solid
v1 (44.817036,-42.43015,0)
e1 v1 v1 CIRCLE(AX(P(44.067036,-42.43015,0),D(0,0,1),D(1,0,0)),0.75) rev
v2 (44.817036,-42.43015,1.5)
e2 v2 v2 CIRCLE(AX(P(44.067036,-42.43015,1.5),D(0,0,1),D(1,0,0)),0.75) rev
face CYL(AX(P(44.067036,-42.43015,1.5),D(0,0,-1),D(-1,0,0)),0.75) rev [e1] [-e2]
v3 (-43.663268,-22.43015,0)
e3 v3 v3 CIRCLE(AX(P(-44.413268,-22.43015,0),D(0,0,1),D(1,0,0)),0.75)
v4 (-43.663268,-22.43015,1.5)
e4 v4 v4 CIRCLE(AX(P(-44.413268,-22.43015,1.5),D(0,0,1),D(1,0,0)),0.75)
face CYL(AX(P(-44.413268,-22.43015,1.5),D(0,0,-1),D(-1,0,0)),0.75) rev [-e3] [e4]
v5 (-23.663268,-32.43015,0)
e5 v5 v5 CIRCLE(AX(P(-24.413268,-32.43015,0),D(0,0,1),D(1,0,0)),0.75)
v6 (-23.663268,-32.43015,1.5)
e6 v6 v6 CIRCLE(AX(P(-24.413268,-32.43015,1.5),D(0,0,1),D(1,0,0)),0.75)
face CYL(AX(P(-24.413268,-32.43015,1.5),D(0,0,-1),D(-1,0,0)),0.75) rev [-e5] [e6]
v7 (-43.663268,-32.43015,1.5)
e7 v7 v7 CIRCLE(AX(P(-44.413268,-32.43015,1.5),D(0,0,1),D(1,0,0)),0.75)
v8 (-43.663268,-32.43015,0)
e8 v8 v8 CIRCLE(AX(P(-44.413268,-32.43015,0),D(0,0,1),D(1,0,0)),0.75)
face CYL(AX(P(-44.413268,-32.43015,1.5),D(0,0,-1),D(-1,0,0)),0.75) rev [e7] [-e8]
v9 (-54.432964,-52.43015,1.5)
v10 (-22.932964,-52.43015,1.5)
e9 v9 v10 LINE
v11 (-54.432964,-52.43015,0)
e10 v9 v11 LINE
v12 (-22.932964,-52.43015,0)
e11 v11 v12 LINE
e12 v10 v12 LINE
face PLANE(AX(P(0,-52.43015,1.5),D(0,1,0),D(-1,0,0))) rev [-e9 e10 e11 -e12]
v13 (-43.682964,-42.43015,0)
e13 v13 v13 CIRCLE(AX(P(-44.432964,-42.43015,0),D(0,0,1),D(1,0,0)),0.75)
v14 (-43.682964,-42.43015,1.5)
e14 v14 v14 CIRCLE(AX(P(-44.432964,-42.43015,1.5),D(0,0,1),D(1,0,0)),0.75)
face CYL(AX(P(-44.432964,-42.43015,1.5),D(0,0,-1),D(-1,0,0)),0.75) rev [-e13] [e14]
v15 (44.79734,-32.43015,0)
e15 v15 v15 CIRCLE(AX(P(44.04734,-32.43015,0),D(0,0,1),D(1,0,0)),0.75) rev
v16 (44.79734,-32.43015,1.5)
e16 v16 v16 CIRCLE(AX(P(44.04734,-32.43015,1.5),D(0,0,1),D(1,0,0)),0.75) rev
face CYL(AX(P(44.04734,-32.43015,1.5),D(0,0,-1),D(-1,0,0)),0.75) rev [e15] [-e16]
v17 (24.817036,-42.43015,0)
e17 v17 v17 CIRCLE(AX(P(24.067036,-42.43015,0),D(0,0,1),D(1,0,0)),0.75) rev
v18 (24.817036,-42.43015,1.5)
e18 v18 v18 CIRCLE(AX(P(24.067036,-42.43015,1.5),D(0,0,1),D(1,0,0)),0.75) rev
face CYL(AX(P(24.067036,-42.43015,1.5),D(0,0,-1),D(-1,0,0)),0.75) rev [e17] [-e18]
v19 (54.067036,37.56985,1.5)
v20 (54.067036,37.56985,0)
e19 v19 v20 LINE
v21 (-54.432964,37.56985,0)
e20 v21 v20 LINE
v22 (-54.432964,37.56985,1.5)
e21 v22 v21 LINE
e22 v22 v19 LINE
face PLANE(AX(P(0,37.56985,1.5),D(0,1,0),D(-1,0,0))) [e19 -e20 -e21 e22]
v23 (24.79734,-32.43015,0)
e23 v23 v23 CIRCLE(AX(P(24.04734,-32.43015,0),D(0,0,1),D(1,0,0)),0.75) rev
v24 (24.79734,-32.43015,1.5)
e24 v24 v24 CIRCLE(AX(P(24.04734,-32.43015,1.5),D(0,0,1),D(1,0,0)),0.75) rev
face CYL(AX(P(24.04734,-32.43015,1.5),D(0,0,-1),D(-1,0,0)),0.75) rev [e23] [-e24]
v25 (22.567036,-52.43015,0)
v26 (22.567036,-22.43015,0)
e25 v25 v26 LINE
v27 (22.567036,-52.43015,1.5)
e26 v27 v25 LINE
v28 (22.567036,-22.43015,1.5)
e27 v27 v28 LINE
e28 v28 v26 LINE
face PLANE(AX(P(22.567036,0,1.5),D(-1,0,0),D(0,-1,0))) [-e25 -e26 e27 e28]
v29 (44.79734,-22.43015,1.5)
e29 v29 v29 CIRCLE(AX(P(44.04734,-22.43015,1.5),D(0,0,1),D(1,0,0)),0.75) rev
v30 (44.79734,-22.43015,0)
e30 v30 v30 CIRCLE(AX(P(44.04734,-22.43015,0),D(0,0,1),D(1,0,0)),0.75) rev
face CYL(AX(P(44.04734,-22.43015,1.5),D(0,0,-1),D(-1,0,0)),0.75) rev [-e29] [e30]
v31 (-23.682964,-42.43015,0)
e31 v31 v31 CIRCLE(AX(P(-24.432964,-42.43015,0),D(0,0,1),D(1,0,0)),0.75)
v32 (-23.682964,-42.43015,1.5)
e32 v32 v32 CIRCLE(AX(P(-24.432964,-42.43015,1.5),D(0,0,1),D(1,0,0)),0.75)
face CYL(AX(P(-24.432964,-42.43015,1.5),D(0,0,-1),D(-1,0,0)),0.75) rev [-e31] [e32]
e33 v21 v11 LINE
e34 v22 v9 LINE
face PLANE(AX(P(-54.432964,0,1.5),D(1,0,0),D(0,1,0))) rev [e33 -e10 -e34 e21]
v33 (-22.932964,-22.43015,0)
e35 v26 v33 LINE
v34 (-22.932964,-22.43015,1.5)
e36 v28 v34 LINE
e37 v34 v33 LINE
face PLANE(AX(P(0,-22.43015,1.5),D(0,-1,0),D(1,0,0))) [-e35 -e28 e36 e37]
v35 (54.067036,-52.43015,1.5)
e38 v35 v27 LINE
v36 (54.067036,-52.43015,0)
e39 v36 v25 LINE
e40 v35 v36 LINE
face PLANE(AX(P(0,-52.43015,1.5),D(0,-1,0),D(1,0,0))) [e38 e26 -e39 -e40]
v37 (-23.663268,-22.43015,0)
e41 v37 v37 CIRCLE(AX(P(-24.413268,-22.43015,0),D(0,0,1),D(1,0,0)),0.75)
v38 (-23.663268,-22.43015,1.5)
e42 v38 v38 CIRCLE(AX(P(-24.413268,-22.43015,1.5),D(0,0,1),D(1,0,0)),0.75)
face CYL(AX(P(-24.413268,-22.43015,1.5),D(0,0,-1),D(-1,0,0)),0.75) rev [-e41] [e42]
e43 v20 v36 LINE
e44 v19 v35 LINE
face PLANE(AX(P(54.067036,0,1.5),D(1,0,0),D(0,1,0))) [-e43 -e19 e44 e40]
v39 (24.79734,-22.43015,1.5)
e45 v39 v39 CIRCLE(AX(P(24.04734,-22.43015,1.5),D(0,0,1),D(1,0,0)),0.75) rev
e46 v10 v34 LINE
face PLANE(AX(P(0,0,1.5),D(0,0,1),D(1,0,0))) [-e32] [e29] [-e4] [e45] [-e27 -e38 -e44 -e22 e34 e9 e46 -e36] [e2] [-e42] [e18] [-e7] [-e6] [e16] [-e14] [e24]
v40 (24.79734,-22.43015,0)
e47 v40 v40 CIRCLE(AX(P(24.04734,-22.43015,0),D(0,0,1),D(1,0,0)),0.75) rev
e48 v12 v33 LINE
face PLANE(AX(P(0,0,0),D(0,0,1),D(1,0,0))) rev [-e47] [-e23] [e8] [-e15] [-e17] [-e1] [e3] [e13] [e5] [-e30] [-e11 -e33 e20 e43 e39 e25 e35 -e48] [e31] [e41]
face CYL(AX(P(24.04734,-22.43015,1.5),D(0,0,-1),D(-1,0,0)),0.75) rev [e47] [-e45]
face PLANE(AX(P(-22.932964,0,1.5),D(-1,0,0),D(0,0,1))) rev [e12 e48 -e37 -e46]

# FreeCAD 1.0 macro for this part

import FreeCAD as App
import Part
import Sketcher

V = App.Vector
Q = App.Units.Quantity

doc = App.newDocument("Part")
params = doc.addObject("Spreadsheet::Sheet", "Params")
for row, (alias, value) in enumerate([
    ("sketch1_diameter", "1.5 mm"),
    ("sketch1_height", "30 mm"),
    ("sketch1_height2", "90 mm"),
    ("sketch1_width", "31.5 mm"),
    ("sketch1_width2", "108.5 mm"),
    ("pad1_length", "1.5 mm"),
], start=1):
    params.set(f"A{row}", alias)
    params.set(f"B{row}", "=" + value)
    params.setAlias(f"B{row}", alias)

body = doc.addObject("PartDesign::Body", "Body")

sketch1 = body.newObject("Sketcher::SketchObject", "Sketch")
sketch1.AttachmentSupport = (doc.getObject("XY_Plane"), [""])
sketch1.MapMode = "FlatFace"
sketch1.addGeometry([
    Part.LineSegment(V(22.567036, -22.43015, 0), V(22.567036, -52.43015, 0)),
    Part.LineSegment(V(22.567036, -52.43015, 0), V(54.067036, -52.43015, 0)),
    Part.LineSegment(V(54.067036, -52.43015, 0), V(54.067036, 37.56985, 0)),
    Part.LineSegment(V(54.067036, 37.56985, 0), V(-54.432964, 37.56985, 0)),
    Part.LineSegment(V(-54.432964, 37.56985, 0), V(-54.432964, -52.43015, 0)),
    Part.LineSegment(V(-54.432964, -52.43015, 0), V(-22.932964, -52.43015, 0)),
    Part.LineSegment(V(-22.932964, -52.43015, 0), V(-22.932964, -22.43015, 0)),
    Part.LineSegment(V(-22.932964, -22.43015, 0), V(22.567036, -22.43015, 0)),
    Part.Circle(V(44.067036, -42.43015, 0), V(0, 0, 1), 0.75),
    Part.Circle(V(24.067036, -42.43015, 0), V(0, 0, 1), 0.75),
    Part.Circle(V(-24.432964, -42.43015, 0), V(0, 0, 1), 0.75),
    Part.Circle(V(-44.432964, -42.43015, 0), V(0, 0, 1), 0.75),
    Part.Circle(V(44.04734, -32.43015, 0), V(0, 0, 1), 0.75),
    Part.Circle(V(24.04734, -32.43015, 0), V(0, 0, 1), 0.75),
    Part.Circle(V(44.04734, -22.43015, 0), V(0, 0, 1), 0.75),
    Part.Circle(V(24.04734, -22.43015, 0), V(0, 0, 1), 0.75),
    Part.Circle(V(-24.413268, -32.43015, 0), V(0, 0, 1), 0.75),
    Part.Circle(V(-44.413268, -32.43015, 0), V(0, 0, 1), 0.75),
    Part.Circle(V(-24.413268, -22.43015, 0), V(0, 0, 1), 0.75),
    Part.Circle(V(-44.413268, -22.43015, 0), V(0, 0, 1), 0.75),
], False)
sketch1.addConstraint([
    Sketcher.Constraint("Coincident", 0, 2, 1, 1),
    Sketcher.Constraint("Coincident", 1, 2, 2, 1),
    Sketcher.Constraint("Coincident", 2, 2, 3, 1),
    Sketcher.Constraint("Coincident", 3, 2, 4, 1),
    Sketcher.Constraint("Coincident", 4, 2, 5, 1),
    Sketcher.Constraint("Coincident", 5, 2, 6, 1),
    Sketcher.Constraint("Coincident", 6, 2, 7, 1),
    Sketcher.Constraint("Coincident", 7, 2, 0, 1),
    Sketcher.Constraint("Vertical", 0),
    Sketcher.Constraint("Horizontal", 1),
    Sketcher.Constraint("Vertical", 2),
    Sketcher.Constraint("Horizontal", 3),
    Sketcher.Constraint("Vertical", 4),
    Sketcher.Constraint("Horizontal", 5),
    Sketcher.Constraint("Vertical", 6),
    Sketcher.Constraint("Horizontal", 7),
    Sketcher.Constraint("Equal", 8, 9),
    Sketcher.Constraint("Equal", 9, 10),
    Sketcher.Constraint("Equal", 10, 11),
    Sketcher.Constraint("Equal", 11, 12),
    Sketcher.Constraint("Equal", 12, 13),
    Sketcher.Constraint("Equal", 13, 14),
    Sketcher.Constraint("Equal", 14, 15),
    Sketcher.Constraint("Equal", 15, 16),
    Sketcher.Constraint("Equal", 16, 17),
    Sketcher.Constraint("Equal", 17, 18),
    Sketcher.Constraint("Equal", 18, 19),
    Sketcher.Constraint("Horizontal", 8, 3, 9, 3),
    Sketcher.Constraint("Horizontal", 9, 3, 10, 3),
    Sketcher.Constraint("Horizontal", 10, 3, 11, 3),
    Sketcher.Constraint("Horizontal", 12, 3, 13, 3),
    Sketcher.Constraint("Horizontal", 14, 3, 15, 3),
    Sketcher.Constraint("Horizontal", 13, 3, 16, 3),
    Sketcher.Constraint("Horizontal", 16, 3, 17, 3),
    Sketcher.Constraint("Horizontal", 15, 3, 18, 3),
    Sketcher.Constraint("Horizontal", 18, 3, 19, 3),
    Sketcher.Constraint("Horizontal", 1, 2, 4, 2),
    Sketcher.Constraint("Horizontal", 19, 3, 6, 2),
    Sketcher.Constraint("Vertical", 12, 3, 14, 3),
    Sketcher.Constraint("Vertical", 13, 3, 15, 3),
    Sketcher.Constraint("Vertical", 16, 3, 18, 3),
    Sketcher.Constraint("Vertical", 17, 3, 19, 3),
    Sketcher.Constraint("Equal", 1, 5),
    Sketcher.Constraint("Diameter", 8, Q("1.5 mm")),
    Sketcher.Constraint("DistanceY", 0, 2, 0, 1, Q("30 mm")),
    Sketcher.Constraint("DistanceY", 2, 1, 2, 2, Q("90 mm")),
    Sketcher.Constraint("DistanceX", 1, 1, 1, 2, Q("31.5 mm")),
    Sketcher.Constraint("DistanceX", 3, 2, 3, 1, Q("108.5 mm")),
    Sketcher.Constraint("DistanceX", 9, 3, 8, 3, Q("20 mm")),
    Sketcher.Constraint("DistanceX", 11, 3, 10, 3, Q("20 mm")),
    Sketcher.Constraint("DistanceY", 8, 3, 12, 3, Q("10 mm")),
    Sketcher.Constraint("DistanceX", 13, 3, 12, 3, Q("20 mm")),
    Sketcher.Constraint("DistanceY", 12, 3, 14, 3, Q("10 mm")),
    Sketcher.Constraint("DistanceX", 17, 3, 16, 3, Q("20 mm")),
    Sketcher.Constraint("DistanceX", 8, 3, 1, 2, Q("10 mm")),
    Sketcher.Constraint("DistanceX", 3, 2, 11, 3, Q("10 mm")),
    Sketcher.Constraint("DistanceY", 8, 3, -1, 1, Q("42.43015 mm")),
    Sketcher.Constraint("DistanceX", -1, 1, 12, 3, Q("44.04734 mm")),
    Sketcher.Constraint("DistanceX", 16, 3, -1, 1, Q("24.413268 mm")),
    Sketcher.Constraint("DistanceX", -1, 1, 8, 3, Q("44.067036 mm")),
])
sketch1.setExpression("Constraints[43]", "Params.sketch1_diameter")
sketch1.setExpression("Constraints[44]", "Params.sketch1_height")
sketch1.setExpression("Constraints[45]", "Params.sketch1_height2")
sketch1.setExpression("Constraints[46]", "Params.sketch1_width")
sketch1.setExpression("Constraints[47]", "Params.sketch1_width2")
pad1 = body.newObject("PartDesign::Pad", "Pad")
pad1.Profile = sketch1
pad1.setExpression("Length", "Params.pad1_length")

doc.recompute()
